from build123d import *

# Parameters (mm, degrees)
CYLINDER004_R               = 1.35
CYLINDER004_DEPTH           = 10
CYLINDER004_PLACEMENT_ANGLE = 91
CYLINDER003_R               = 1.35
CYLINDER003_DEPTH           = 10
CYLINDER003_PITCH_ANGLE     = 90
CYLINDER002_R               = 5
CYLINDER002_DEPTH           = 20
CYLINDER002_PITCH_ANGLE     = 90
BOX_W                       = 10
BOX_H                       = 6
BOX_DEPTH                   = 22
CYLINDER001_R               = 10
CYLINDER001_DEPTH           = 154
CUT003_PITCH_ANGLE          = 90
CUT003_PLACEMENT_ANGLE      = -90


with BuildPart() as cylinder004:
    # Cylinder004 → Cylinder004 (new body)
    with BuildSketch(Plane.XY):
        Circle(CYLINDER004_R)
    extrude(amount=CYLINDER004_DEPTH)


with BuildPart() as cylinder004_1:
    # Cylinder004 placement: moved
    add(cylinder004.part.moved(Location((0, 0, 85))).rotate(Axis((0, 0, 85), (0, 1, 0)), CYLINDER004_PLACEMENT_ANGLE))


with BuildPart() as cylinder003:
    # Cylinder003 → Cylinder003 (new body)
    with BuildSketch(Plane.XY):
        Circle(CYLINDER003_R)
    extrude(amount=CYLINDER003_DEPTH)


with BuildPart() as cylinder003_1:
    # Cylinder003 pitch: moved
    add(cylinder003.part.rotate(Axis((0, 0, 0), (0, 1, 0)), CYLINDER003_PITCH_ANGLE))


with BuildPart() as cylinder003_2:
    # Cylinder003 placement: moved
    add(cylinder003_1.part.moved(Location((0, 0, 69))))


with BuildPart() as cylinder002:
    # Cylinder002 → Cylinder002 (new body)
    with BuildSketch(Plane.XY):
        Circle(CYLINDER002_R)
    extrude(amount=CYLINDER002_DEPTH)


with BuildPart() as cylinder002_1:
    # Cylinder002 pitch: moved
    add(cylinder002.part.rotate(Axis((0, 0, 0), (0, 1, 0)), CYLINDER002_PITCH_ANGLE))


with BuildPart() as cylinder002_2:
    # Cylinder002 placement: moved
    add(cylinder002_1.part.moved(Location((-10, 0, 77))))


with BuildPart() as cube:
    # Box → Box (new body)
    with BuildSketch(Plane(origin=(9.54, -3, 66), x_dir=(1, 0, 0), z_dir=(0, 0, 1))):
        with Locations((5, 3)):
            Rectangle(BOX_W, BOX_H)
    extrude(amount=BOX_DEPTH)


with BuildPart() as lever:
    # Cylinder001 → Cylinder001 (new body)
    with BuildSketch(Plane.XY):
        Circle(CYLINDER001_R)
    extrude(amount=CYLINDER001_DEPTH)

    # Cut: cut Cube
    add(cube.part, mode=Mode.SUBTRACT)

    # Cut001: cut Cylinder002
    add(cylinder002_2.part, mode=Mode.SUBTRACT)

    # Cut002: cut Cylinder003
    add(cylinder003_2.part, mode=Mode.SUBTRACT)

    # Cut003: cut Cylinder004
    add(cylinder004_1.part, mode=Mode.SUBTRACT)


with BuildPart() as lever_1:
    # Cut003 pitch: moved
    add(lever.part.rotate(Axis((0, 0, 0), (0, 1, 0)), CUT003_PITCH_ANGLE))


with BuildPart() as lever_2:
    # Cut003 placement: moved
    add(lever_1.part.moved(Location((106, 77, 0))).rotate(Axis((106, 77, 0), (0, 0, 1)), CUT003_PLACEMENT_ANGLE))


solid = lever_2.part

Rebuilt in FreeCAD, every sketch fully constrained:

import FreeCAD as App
import Part
import Sketcher

V = App.Vector


def add_polygon(sketch, points):
    """Adds a closed chain of lines whose ends are joined by coincident constraints."""
    first, n = sketch.GeometryCount, len(points)
    for a, b in zip(points, points[1:] + points[:1]):
        sketch.addGeometry(Part.LineSegment(App.Vector(*a, 0), App.Vector(*b, 0)), False)
    for i in range(n):
        sketch.addConstraint(Sketcher.Constraint("Coincident", first + i, 2, first + (i + 1) % n, 1))

doc = App.newDocument("Part")
params = doc.addObject("Spreadsheet::Sheet", "Params")
for row, (alias, value) in enumerate([
    ("sketch1_diameter", "2.7 mm"),
    ("pad1_length", "10 mm"),
    ("sketch2_diameter", "2.7 mm"),
    ("pad2_length", "10 mm"),
    ("sketch3_diameter", "10 mm"),
    ("pad3_length", "20 mm"),
    ("sketch4_width", "10 mm"),
    ("sketch4_height", "6 mm"),
    ("pad4_length", "22 mm"),
    ("sketch5_diameter", "20 mm"),
    ("pad5_length", "154 mm"),
], start=1):
    params.set(f"A{row}", alias)
    params.set(f"B{row}", "=" + value)
    params.setAlias(f"B{row}", alias)

body = doc.addObject("PartDesign::Body", "Body")

sketch1 = body.newObject("Sketcher::SketchObject", "Sketch")
sketch1.AttachmentSupport = (doc.getObject("XY_Plane"), [""])
sketch1.MapMode = "FlatFace"
sketch1.addGeometry(Part.Circle(V(0, 0, 0), V(0, 0, 1), 1.35), False)
sketch1.addConstraint(Sketcher.Constraint("Coincident", 0, 3, -1, 1))
sketch1.addConstraint(Sketcher.Constraint("Diameter", 0, 2.7))
sketch1.setExpression("Constraints[1]", "Params.sketch1_diameter")
pad1 = body.newObject("PartDesign::Pad", "Pad")
pad1.Profile = sketch1
pad1.setExpression("Length", "Params.pad1_length")
body2 = doc.addObject("PartDesign::Body", "Body001")
doc.recompute()

body.Placement = App.Placement(V(0, 0, 85), App.Rotation(V(0, 1, 0), 91))
boolean = body2.newObject("PartDesign::Boolean", "Boolean")
boolean.Type = "Fuse"
boolean.addObjects([body])
body3 = doc.addObject("PartDesign::Body", "Body002")

sketch2 = body3.newObject("Sketcher::SketchObject", "Sketch001")
sketch2.AttachmentSupport = (doc.getObject("XY_Plane002"), [""])
sketch2.MapMode = "FlatFace"
sketch2.addGeometry(Part.Circle(V(0, 0, 0), V(0, 0, 1), 1.35), False)
sketch2.addConstraint(Sketcher.Constraint("Coincident", 0, 3, -1, 1))
sketch2.addConstraint(Sketcher.Constraint("Diameter", 0, 2.7))
sketch2.setExpression("Constraints[1]", "Params.sketch2_diameter")
pad2 = body3.newObject("PartDesign::Pad", "Pad001")
pad2.Profile = sketch2
pad2.setExpression("Length", "Params.pad2_length")
body4 = doc.addObject("PartDesign::Body", "Body003")
doc.recompute()

body3.Placement = App.Placement(V(0, 0, 0), App.Rotation(V(0, 1, 0), 90))
boolean2 = body4.newObject("PartDesign::Boolean", "Boolean001")
boolean2.Type = "Fuse"
boolean2.addObjects([body3])
body5 = doc.addObject("PartDesign::Body", "Body004")
doc.recompute()

body4.Placement = App.Placement(V(0, 0, 69), App.Rotation(V(0, 0, 1), 0))
boolean3 = body5.newObject("PartDesign::Boolean", "Boolean002")
boolean3.Type = "Fuse"
boolean3.addObjects([body4])
body6 = doc.addObject("PartDesign::Body", "Body005")

sketch3 = body6.newObject("Sketcher::SketchObject", "Sketch002")
sketch3.AttachmentSupport = (doc.getObject("XY_Plane005"), [""])
sketch3.MapMode = "FlatFace"
sketch3.addGeometry(Part.Circle(V(0, 0, 0), V(0, 0, 1), 5), False)
sketch3.addConstraint(Sketcher.Constraint("Coincident", 0, 3, -1, 1))
sketch3.addConstraint(Sketcher.Constraint("Diameter", 0, 10.0))
sketch3.setExpression("Constraints[1]", "Params.sketch3_diameter")
pad3 = body6.newObject("PartDesign::Pad", "Pad002")
pad3.Profile = sketch3
pad3.setExpression("Length", "Params.pad3_length")
body7 = doc.addObject("PartDesign::Body", "Body006")
doc.recompute()

body6.Placement = App.Placement(V(0, 0, 0), App.Rotation(V(0, 1, 0), 90))
boolean4 = body7.newObject("PartDesign::Boolean", "Boolean003")
boolean4.Type = "Fuse"
boolean4.addObjects([body6])
body8 = doc.addObject("PartDesign::Body", "Body007")
doc.recompute()

body7.Placement = App.Placement(V(-10, 0, 77), App.Rotation(V(0, 0, 1), 0))
boolean5 = body8.newObject("PartDesign::Boolean", "Boolean004")
boolean5.Type = "Fuse"
boolean5.addObjects([body7])
body9 = doc.addObject("PartDesign::Body", "Body008")

sketch4 = body9.newObject("Sketcher::SketchObject", "Sketch003")
sketch4.AttachmentSupport = (doc.getObject("XY_Plane008"), [""])
sketch4.MapMode = "FlatFace"
sketch4.AttachmentOffset = App.Placement(V(0, 0, 66), App.Rotation())
add_polygon(sketch4, [(9.54, 3), (9.54, -3), (19.54, -3), (19.54, 3)])
sketch4.addConstraint(Sketcher.Constraint("Vertical", 0))
sketch4.addConstraint(Sketcher.Constraint("Horizontal", 1))
sketch4.addConstraint(Sketcher.Constraint("Vertical", 2))
sketch4.addConstraint(Sketcher.Constraint("Horizontal", 3))
sketch4.addConstraint(Sketcher.Constraint("DistanceX", 1, 1, 1, 2, 10.0))
sketch4.addConstraint(Sketcher.Constraint("DistanceY", 0, 2, 0, 1, 6.0))
sketch4.addConstraint(Sketcher.Constraint("DistanceY", 0, 2, -1, 1, 3.0))
sketch4.addConstraint(Sketcher.Constraint("DistanceX", -1, 1, 0, 2, 9.54))
sketch4.setExpression("Constraints[8]", "Params.sketch4_width")
sketch4.setExpression("Constraints[9]", "Params.sketch4_height")
pad4 = body9.newObject("PartDesign::Pad", "Pad003")
pad4.Profile = sketch4
pad4.setExpression("Length", "Params.pad4_length")
body10 = doc.addObject("PartDesign::Body", "Body009")

sketch5 = body10.newObject("Sketcher::SketchObject", "Sketch004")
sketch5.AttachmentSupport = (doc.getObject("XY_Plane009"), [""])
sketch5.MapMode = "FlatFace"
sketch5.addGeometry(Part.Circle(V(0, 0, 0), V(0, 0, 1), 10), False)
sketch5.addConstraint(Sketcher.Constraint("Coincident", 0, 3, -1, 1))
sketch5.addConstraint(Sketcher.Constraint("Diameter", 0, 20.0))
sketch5.setExpression("Constraints[1]", "Params.sketch5_diameter")
pad5 = body10.newObject("PartDesign::Pad", "Pad004")
pad5.Profile = sketch5
pad5.setExpression("Length", "Params.pad5_length")
doc.recompute()

boolean6 = body10.newObject("PartDesign::Boolean", "Boolean005")
boolean6.Type = "Cut"
boolean6.addObjects([body9])
doc.recompute()

boolean7 = body10.newObject("PartDesign::Boolean", "Boolean006")
boolean7.Type = "Cut"
boolean7.addObjects([body8])
doc.recompute()

boolean8 = body10.newObject("PartDesign::Boolean", "Boolean007")
boolean8.Type = "Cut"
boolean8.addObjects([body5])
doc.recompute()

boolean9 = body10.newObject("PartDesign::Boolean", "Boolean008")
boolean9.Type = "Cut"
boolean9.addObjects([body2])
body11 = doc.addObject("PartDesign::Body", "Body010")
doc.recompute()

body10.Placement = App.Placement(V(0, 0, 0), App.Rotation(V(0, 1, 0), 90))
boolean10 = body11.newObject("PartDesign::Boolean", "Boolean009")
boolean10.Type = "Fuse"
boolean10.addObjects([body10])
body12 = doc.addObject("PartDesign::Body", "Body011")
doc.recompute()

body11.Placement = App.Placement(V(106, 77, 0), App.Rotation(V(0, 0, 1), 270))
boolean11 = body12.newObject("PartDesign::Boolean", "Boolean010")
boolean11.Type = "Fuse"
boolean11.addObjects([body11])

doc.recompute()
